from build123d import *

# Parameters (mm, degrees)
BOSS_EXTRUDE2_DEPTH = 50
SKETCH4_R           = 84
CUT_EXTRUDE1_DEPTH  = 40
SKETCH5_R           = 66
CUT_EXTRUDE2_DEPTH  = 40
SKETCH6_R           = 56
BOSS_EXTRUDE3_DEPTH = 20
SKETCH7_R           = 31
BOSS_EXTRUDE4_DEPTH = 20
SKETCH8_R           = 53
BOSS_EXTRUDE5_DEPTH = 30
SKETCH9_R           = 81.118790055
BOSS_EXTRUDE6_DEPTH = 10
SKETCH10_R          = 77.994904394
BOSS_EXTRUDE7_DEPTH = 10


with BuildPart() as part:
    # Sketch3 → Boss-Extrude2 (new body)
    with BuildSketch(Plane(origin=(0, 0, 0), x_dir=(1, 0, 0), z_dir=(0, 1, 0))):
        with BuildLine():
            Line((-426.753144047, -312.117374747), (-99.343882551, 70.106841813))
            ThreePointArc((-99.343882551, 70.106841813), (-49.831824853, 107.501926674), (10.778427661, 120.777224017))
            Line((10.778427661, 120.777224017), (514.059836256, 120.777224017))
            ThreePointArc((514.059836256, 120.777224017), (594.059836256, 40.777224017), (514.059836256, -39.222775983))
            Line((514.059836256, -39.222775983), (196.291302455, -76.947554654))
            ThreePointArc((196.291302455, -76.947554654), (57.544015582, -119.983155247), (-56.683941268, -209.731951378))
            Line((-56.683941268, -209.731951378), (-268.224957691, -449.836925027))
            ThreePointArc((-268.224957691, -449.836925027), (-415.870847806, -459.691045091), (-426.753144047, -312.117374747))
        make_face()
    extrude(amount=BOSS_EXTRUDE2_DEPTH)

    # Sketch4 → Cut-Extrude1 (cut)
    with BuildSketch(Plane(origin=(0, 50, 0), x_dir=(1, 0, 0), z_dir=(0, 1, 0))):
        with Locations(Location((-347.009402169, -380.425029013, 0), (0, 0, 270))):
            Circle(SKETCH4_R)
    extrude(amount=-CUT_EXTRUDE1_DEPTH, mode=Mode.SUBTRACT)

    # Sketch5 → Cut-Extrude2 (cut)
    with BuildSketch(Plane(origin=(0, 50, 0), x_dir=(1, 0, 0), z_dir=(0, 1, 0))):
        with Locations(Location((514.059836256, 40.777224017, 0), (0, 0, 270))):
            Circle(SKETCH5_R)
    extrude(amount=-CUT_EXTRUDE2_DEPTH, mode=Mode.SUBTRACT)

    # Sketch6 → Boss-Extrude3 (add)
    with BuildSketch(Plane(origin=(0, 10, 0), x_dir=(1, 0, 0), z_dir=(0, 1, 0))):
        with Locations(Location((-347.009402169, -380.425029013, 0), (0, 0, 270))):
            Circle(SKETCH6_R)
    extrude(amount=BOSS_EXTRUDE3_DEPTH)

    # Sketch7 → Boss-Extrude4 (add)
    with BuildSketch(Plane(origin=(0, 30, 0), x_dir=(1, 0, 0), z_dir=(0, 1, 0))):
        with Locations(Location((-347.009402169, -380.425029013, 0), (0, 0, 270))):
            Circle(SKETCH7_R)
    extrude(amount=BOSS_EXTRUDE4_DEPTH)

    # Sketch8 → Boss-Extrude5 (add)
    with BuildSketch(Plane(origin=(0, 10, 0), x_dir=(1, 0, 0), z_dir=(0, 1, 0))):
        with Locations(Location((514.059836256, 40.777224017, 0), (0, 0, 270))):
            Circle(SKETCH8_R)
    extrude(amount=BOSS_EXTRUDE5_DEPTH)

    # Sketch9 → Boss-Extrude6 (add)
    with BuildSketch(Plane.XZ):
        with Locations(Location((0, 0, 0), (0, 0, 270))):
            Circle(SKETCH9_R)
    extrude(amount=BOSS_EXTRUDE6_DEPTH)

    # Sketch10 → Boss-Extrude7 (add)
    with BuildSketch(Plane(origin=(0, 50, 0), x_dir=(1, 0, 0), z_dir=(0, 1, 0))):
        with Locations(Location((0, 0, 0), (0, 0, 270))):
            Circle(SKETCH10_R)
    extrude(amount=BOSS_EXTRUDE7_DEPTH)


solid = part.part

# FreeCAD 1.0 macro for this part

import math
import FreeCAD as App
import Part
import Sketcher
from FreeCAD import Vector

doc = App.newDocument("Part")
body = doc.addObject("PartDesign::Body", "Body")

sketch1 = body.newObject("Sketcher::SketchObject", "Sketch")
sketch1.AttachmentSupport = (doc.getObject("XZ_Plane"), [""])
sketch1.MapMode = "FlatFace"
sketch1.addGeometry(Part.LineSegment(Vector(-99, -70, 0), Vector(-427, 312, 0)), False)
sketch1.addGeometry(Part.ArcOfCircle(Part.Circle(Vector(-347, 380, 0), Vector(0, 0, 1), 105), math.radians(41), math.radians(221)), False)
sketch1.addGeometry(Part.LineSegment(Vector(-268, 450, 0), Vector(-57, 210, 0)), False)
sketch1.addGeometry(Part.ArcOfCircle(Part.Circle(Vector(243, 474, 0), Vector(0, 0, 1), 400), math.radians(-139), math.radians(-97)), False)
sketch1.addGeometry(Part.LineSegment(Vector(196, 77, 0), Vector(514, 39, 0)), False)
sketch1.addGeometry(Part.ArcOfCircle(Part.Circle(Vector(514, -41, 0), Vector(0, 0, 1), 80), math.radians(-90), math.radians(90)), False)
sketch1.addGeometry(Part.LineSegment(Vector(514, -121, 0), Vector(11, -121, 0)), False)
sketch1.addGeometry(Part.ArcOfCircle(Part.Circle(Vector(11, 24, 0), Vector(0, 0, 1), 145), math.radians(-139), math.radians(-90)), False)
sketch1.addConstraint(Sketcher.Constraint("Tangent", 0, 2, 1, 2))
sketch1.addConstraint(Sketcher.Constraint("Tangent", 1, 1, 2, 1))
sketch1.addConstraint(Sketcher.Constraint("Tangent", 2, 2, 3, 1))
sketch1.addConstraint(Sketcher.Constraint("Tangent", 3, 2, 4, 1))
sketch1.addConstraint(Sketcher.Constraint("Coincident", 4, 2, 5, 2))
sketch1.addConstraint(Sketcher.Constraint("Tangent", 5, 1, 6, 1))
sketch1.addConstraint(Sketcher.Constraint("Tangent", 6, 2, 7, 2))
sketch1.addConstraint(Sketcher.Constraint("Tangent", 7, 1, 0, 1))
sketch1.addConstraint(Sketcher.Constraint("Horizontal", 6))
sketch1.addConstraint(Sketcher.Constraint("Vertical", 5, 3, 4, 2))
sketch1.addConstraint(Sketcher.Constraint("Equal", 2, 4))
sketch1.addConstraint(Sketcher.Constraint("Radius", 1, 105.0))
sketch1.addConstraint(Sketcher.Constraint("Radius", 3, 400.0))
sketch1.addConstraint(Sketcher.Constraint("Radius", 5, 80.0))
sketch1.addConstraint(Sketcher.Constraint("Radius", 7, 145.0))
sketch1.addConstraint(Sketcher.Constraint("Distance", 2, 320.0))
sketch1.addConstraint(Sketcher.Constraint("DistanceX", 6, 2, 6, 1, 503.281409))
sketch1.addConstraint(Sketcher.Constraint("DistanceY", 7, 3, 0, 2, 287.894599))
sketch1.addConstraint(Sketcher.Constraint("Distance", 0, 503.281409))
sketch1.addConstraint(Sketcher.Constraint("DistanceY", -1, 1, 1, 3, 380.425029))
sketch1.addConstraint(Sketcher.Constraint("DistanceX", 2, 2, -1, 1, 56.683941))
pad1 = body.newObject("PartDesign::Pad", "Pad")
pad1.Profile = sketch1
pad1.Length = 50
pad1.Reversed = True

sketch2 = body.newObject("Sketcher::SketchObject", "Sketch001")
sketch2.AttachmentSupport = (doc.getObject("XZ_Plane"), [""])
sketch2.MapMode = "FlatFace"
sketch2.AttachmentOffset = App.Placement(Vector(0, 0, -50), App.Rotation())
sketch2.addGeometry(Part.Circle(Vector(-347, 380, 0), Vector(0, 0, 1), 84), False)
sketch2.addConstraint(Sketcher.Constraint("Diameter", 0, 168.0))
sketch2.addConstraint(Sketcher.Constraint("DistanceY", -1, 1, 0, 3, 380.425029))
sketch2.addConstraint(Sketcher.Constraint("DistanceX", 0, 3, -1, 1, 347.009402))
pocket1 = body.newObject("PartDesign::Pocket", "Pocket")
pocket1.Profile = sketch2
pocket1.Length = 40
pocket1.Reversed = True

sketch3 = body.newObject("Sketcher::SketchObject", "Sketch002")
sketch3.AttachmentSupport = (doc.getObject("XZ_Plane"), [""])
sketch3.MapMode = "FlatFace"
sketch3.AttachmentOffset = App.Placement(Vector(0, 0, -50), App.Rotation())
sketch3.addGeometry(Part.Circle(Vector(514, -41, 0), Vector(0, 0, 1), 66), False)
sketch3.addConstraint(Sketcher.Constraint("Diameter", 0, 132.0))
sketch3.addConstraint(Sketcher.Constraint("DistanceX", -1, 1, 0, 3, 514.059836))
sketch3.addConstraint(Sketcher.Constraint("DistanceY", 0, 3, -1, 1, 40.777224))
pocket2 = body.newObject("PartDesign::Pocket", "Pocket001")
pocket2.Profile = sketch3
pocket2.Length = 40
pocket2.Reversed = True

sketch4 = body.newObject("Sketcher::SketchObject", "Sketch003")
sketch4.AttachmentSupport = (doc.getObject("XZ_Plane"), [""])
sketch4.MapMode = "FlatFace"
sketch4.AttachmentOffset = App.Placement(Vector(0, 0, -10), App.Rotation())
sketch4.addGeometry(Part.Circle(Vector(-347, 380, 0), Vector(0, 0, 1), 56), False)
sketch4.addConstraint(Sketcher.Constraint("Diameter", 0, 112.0))
sketch4.addConstraint(Sketcher.Constraint("DistanceY", -1, 1, 0, 3, 380.425029))
sketch4.addConstraint(Sketcher.Constraint("DistanceX", 0, 3, -1, 1, 347.009402))
pad2 = body.newObject("PartDesign::Pad", "Pad001")
pad2.Profile = sketch4
pad2.Length = 20
pad2.Reversed = True

sketch5 = body.newObject("Sketcher::SketchObject", "Sketch004")
sketch5.AttachmentSupport = (doc.getObject("XZ_Plane"), [""])
sketch5.MapMode = "FlatFace"
sketch5.AttachmentOffset = App.Placement(Vector(0, 0, -30), App.Rotation())
sketch5.addGeometry(Part.Circle(Vector(-347, 380, 0), Vector(0, 0, 1), 31), False)
sketch5.addConstraint(Sketcher.Constraint("Diameter", 0, 62.0))
sketch5.addConstraint(Sketcher.Constraint("DistanceY", -1, 1, 0, 3, 380.425029))
sketch5.addConstraint(Sketcher.Constraint("DistanceX", 0, 3, -1, 1, 347.009402))
pad3 = body.newObject("PartDesign::Pad", "Pad002")
pad3.Profile = sketch5
pad3.Length = 20
pad3.Reversed = True

sketch6 = body.newObject("Sketcher::SketchObject", "Sketch005")
sketch6.AttachmentSupport = (doc.getObject("XZ_Plane"), [""])
sketch6.MapMode = "FlatFace"
sketch6.AttachmentOffset = App.Placement(Vector(0, 0, -10), App.Rotation())
sketch6.addGeometry(Part.Circle(Vector(514, -41, 0), Vector(0, 0, 1), 53), False)
sketch6.addConstraint(Sketcher.Constraint("Diameter", 0, 106.0))
sketch6.addConstraint(Sketcher.Constraint("DistanceX", -1, 1, 0, 3, 514.059836))
sketch6.addConstraint(Sketcher.Constraint("DistanceY", 0, 3, -1, 1, 40.777224))
pad4 = body.newObject("PartDesign::Pad", "Pad003")
pad4.Profile = sketch6
pad4.Length = 30
pad4.Reversed = True

sketch7 = body.newObject("Sketcher::SketchObject", "Sketch006")
sketch7.AttachmentSupport = (doc.getObject("XZ_Plane"), [""])
sketch7.MapMode = "FlatFace"
sketch7.addGeometry(Part.Circle(Vector(0, 0, 0), Vector(0, 0, 1), 81), False)
sketch7.addConstraint(Sketcher.Constraint("Coincident", 0, 3, -1, 1))
sketch7.addConstraint(Sketcher.Constraint("Diameter", 0, 162.23758))
pad5 = body.newObject("PartDesign::Pad", "Pad004")
pad5.Profile = sketch7
pad5.Length = 10

sketch8 = body.newObject("Sketcher::SketchObject", "Sketch007")
sketch8.AttachmentSupport = (doc.getObject("XZ_Plane"), [""])
sketch8.MapMode = "FlatFace"
sketch8.AttachmentOffset = App.Placement(Vector(0, 0, -50), App.Rotation())
sketch8.addGeometry(Part.Circle(Vector(0, 0, 0), Vector(0, 0, 1), 78), False)
sketch8.addConstraint(Sketcher.Constraint("Coincident", 0, 3, -1, 1))
sketch8.addConstraint(Sketcher.Constraint("Diameter", 0, 155.989809))
pad6 = body.newObject("PartDesign::Pad", "Pad005")
pad6.Profile = sketch8
pad6.Length = 10
pad6.Reversed = True

doc.recompute()
